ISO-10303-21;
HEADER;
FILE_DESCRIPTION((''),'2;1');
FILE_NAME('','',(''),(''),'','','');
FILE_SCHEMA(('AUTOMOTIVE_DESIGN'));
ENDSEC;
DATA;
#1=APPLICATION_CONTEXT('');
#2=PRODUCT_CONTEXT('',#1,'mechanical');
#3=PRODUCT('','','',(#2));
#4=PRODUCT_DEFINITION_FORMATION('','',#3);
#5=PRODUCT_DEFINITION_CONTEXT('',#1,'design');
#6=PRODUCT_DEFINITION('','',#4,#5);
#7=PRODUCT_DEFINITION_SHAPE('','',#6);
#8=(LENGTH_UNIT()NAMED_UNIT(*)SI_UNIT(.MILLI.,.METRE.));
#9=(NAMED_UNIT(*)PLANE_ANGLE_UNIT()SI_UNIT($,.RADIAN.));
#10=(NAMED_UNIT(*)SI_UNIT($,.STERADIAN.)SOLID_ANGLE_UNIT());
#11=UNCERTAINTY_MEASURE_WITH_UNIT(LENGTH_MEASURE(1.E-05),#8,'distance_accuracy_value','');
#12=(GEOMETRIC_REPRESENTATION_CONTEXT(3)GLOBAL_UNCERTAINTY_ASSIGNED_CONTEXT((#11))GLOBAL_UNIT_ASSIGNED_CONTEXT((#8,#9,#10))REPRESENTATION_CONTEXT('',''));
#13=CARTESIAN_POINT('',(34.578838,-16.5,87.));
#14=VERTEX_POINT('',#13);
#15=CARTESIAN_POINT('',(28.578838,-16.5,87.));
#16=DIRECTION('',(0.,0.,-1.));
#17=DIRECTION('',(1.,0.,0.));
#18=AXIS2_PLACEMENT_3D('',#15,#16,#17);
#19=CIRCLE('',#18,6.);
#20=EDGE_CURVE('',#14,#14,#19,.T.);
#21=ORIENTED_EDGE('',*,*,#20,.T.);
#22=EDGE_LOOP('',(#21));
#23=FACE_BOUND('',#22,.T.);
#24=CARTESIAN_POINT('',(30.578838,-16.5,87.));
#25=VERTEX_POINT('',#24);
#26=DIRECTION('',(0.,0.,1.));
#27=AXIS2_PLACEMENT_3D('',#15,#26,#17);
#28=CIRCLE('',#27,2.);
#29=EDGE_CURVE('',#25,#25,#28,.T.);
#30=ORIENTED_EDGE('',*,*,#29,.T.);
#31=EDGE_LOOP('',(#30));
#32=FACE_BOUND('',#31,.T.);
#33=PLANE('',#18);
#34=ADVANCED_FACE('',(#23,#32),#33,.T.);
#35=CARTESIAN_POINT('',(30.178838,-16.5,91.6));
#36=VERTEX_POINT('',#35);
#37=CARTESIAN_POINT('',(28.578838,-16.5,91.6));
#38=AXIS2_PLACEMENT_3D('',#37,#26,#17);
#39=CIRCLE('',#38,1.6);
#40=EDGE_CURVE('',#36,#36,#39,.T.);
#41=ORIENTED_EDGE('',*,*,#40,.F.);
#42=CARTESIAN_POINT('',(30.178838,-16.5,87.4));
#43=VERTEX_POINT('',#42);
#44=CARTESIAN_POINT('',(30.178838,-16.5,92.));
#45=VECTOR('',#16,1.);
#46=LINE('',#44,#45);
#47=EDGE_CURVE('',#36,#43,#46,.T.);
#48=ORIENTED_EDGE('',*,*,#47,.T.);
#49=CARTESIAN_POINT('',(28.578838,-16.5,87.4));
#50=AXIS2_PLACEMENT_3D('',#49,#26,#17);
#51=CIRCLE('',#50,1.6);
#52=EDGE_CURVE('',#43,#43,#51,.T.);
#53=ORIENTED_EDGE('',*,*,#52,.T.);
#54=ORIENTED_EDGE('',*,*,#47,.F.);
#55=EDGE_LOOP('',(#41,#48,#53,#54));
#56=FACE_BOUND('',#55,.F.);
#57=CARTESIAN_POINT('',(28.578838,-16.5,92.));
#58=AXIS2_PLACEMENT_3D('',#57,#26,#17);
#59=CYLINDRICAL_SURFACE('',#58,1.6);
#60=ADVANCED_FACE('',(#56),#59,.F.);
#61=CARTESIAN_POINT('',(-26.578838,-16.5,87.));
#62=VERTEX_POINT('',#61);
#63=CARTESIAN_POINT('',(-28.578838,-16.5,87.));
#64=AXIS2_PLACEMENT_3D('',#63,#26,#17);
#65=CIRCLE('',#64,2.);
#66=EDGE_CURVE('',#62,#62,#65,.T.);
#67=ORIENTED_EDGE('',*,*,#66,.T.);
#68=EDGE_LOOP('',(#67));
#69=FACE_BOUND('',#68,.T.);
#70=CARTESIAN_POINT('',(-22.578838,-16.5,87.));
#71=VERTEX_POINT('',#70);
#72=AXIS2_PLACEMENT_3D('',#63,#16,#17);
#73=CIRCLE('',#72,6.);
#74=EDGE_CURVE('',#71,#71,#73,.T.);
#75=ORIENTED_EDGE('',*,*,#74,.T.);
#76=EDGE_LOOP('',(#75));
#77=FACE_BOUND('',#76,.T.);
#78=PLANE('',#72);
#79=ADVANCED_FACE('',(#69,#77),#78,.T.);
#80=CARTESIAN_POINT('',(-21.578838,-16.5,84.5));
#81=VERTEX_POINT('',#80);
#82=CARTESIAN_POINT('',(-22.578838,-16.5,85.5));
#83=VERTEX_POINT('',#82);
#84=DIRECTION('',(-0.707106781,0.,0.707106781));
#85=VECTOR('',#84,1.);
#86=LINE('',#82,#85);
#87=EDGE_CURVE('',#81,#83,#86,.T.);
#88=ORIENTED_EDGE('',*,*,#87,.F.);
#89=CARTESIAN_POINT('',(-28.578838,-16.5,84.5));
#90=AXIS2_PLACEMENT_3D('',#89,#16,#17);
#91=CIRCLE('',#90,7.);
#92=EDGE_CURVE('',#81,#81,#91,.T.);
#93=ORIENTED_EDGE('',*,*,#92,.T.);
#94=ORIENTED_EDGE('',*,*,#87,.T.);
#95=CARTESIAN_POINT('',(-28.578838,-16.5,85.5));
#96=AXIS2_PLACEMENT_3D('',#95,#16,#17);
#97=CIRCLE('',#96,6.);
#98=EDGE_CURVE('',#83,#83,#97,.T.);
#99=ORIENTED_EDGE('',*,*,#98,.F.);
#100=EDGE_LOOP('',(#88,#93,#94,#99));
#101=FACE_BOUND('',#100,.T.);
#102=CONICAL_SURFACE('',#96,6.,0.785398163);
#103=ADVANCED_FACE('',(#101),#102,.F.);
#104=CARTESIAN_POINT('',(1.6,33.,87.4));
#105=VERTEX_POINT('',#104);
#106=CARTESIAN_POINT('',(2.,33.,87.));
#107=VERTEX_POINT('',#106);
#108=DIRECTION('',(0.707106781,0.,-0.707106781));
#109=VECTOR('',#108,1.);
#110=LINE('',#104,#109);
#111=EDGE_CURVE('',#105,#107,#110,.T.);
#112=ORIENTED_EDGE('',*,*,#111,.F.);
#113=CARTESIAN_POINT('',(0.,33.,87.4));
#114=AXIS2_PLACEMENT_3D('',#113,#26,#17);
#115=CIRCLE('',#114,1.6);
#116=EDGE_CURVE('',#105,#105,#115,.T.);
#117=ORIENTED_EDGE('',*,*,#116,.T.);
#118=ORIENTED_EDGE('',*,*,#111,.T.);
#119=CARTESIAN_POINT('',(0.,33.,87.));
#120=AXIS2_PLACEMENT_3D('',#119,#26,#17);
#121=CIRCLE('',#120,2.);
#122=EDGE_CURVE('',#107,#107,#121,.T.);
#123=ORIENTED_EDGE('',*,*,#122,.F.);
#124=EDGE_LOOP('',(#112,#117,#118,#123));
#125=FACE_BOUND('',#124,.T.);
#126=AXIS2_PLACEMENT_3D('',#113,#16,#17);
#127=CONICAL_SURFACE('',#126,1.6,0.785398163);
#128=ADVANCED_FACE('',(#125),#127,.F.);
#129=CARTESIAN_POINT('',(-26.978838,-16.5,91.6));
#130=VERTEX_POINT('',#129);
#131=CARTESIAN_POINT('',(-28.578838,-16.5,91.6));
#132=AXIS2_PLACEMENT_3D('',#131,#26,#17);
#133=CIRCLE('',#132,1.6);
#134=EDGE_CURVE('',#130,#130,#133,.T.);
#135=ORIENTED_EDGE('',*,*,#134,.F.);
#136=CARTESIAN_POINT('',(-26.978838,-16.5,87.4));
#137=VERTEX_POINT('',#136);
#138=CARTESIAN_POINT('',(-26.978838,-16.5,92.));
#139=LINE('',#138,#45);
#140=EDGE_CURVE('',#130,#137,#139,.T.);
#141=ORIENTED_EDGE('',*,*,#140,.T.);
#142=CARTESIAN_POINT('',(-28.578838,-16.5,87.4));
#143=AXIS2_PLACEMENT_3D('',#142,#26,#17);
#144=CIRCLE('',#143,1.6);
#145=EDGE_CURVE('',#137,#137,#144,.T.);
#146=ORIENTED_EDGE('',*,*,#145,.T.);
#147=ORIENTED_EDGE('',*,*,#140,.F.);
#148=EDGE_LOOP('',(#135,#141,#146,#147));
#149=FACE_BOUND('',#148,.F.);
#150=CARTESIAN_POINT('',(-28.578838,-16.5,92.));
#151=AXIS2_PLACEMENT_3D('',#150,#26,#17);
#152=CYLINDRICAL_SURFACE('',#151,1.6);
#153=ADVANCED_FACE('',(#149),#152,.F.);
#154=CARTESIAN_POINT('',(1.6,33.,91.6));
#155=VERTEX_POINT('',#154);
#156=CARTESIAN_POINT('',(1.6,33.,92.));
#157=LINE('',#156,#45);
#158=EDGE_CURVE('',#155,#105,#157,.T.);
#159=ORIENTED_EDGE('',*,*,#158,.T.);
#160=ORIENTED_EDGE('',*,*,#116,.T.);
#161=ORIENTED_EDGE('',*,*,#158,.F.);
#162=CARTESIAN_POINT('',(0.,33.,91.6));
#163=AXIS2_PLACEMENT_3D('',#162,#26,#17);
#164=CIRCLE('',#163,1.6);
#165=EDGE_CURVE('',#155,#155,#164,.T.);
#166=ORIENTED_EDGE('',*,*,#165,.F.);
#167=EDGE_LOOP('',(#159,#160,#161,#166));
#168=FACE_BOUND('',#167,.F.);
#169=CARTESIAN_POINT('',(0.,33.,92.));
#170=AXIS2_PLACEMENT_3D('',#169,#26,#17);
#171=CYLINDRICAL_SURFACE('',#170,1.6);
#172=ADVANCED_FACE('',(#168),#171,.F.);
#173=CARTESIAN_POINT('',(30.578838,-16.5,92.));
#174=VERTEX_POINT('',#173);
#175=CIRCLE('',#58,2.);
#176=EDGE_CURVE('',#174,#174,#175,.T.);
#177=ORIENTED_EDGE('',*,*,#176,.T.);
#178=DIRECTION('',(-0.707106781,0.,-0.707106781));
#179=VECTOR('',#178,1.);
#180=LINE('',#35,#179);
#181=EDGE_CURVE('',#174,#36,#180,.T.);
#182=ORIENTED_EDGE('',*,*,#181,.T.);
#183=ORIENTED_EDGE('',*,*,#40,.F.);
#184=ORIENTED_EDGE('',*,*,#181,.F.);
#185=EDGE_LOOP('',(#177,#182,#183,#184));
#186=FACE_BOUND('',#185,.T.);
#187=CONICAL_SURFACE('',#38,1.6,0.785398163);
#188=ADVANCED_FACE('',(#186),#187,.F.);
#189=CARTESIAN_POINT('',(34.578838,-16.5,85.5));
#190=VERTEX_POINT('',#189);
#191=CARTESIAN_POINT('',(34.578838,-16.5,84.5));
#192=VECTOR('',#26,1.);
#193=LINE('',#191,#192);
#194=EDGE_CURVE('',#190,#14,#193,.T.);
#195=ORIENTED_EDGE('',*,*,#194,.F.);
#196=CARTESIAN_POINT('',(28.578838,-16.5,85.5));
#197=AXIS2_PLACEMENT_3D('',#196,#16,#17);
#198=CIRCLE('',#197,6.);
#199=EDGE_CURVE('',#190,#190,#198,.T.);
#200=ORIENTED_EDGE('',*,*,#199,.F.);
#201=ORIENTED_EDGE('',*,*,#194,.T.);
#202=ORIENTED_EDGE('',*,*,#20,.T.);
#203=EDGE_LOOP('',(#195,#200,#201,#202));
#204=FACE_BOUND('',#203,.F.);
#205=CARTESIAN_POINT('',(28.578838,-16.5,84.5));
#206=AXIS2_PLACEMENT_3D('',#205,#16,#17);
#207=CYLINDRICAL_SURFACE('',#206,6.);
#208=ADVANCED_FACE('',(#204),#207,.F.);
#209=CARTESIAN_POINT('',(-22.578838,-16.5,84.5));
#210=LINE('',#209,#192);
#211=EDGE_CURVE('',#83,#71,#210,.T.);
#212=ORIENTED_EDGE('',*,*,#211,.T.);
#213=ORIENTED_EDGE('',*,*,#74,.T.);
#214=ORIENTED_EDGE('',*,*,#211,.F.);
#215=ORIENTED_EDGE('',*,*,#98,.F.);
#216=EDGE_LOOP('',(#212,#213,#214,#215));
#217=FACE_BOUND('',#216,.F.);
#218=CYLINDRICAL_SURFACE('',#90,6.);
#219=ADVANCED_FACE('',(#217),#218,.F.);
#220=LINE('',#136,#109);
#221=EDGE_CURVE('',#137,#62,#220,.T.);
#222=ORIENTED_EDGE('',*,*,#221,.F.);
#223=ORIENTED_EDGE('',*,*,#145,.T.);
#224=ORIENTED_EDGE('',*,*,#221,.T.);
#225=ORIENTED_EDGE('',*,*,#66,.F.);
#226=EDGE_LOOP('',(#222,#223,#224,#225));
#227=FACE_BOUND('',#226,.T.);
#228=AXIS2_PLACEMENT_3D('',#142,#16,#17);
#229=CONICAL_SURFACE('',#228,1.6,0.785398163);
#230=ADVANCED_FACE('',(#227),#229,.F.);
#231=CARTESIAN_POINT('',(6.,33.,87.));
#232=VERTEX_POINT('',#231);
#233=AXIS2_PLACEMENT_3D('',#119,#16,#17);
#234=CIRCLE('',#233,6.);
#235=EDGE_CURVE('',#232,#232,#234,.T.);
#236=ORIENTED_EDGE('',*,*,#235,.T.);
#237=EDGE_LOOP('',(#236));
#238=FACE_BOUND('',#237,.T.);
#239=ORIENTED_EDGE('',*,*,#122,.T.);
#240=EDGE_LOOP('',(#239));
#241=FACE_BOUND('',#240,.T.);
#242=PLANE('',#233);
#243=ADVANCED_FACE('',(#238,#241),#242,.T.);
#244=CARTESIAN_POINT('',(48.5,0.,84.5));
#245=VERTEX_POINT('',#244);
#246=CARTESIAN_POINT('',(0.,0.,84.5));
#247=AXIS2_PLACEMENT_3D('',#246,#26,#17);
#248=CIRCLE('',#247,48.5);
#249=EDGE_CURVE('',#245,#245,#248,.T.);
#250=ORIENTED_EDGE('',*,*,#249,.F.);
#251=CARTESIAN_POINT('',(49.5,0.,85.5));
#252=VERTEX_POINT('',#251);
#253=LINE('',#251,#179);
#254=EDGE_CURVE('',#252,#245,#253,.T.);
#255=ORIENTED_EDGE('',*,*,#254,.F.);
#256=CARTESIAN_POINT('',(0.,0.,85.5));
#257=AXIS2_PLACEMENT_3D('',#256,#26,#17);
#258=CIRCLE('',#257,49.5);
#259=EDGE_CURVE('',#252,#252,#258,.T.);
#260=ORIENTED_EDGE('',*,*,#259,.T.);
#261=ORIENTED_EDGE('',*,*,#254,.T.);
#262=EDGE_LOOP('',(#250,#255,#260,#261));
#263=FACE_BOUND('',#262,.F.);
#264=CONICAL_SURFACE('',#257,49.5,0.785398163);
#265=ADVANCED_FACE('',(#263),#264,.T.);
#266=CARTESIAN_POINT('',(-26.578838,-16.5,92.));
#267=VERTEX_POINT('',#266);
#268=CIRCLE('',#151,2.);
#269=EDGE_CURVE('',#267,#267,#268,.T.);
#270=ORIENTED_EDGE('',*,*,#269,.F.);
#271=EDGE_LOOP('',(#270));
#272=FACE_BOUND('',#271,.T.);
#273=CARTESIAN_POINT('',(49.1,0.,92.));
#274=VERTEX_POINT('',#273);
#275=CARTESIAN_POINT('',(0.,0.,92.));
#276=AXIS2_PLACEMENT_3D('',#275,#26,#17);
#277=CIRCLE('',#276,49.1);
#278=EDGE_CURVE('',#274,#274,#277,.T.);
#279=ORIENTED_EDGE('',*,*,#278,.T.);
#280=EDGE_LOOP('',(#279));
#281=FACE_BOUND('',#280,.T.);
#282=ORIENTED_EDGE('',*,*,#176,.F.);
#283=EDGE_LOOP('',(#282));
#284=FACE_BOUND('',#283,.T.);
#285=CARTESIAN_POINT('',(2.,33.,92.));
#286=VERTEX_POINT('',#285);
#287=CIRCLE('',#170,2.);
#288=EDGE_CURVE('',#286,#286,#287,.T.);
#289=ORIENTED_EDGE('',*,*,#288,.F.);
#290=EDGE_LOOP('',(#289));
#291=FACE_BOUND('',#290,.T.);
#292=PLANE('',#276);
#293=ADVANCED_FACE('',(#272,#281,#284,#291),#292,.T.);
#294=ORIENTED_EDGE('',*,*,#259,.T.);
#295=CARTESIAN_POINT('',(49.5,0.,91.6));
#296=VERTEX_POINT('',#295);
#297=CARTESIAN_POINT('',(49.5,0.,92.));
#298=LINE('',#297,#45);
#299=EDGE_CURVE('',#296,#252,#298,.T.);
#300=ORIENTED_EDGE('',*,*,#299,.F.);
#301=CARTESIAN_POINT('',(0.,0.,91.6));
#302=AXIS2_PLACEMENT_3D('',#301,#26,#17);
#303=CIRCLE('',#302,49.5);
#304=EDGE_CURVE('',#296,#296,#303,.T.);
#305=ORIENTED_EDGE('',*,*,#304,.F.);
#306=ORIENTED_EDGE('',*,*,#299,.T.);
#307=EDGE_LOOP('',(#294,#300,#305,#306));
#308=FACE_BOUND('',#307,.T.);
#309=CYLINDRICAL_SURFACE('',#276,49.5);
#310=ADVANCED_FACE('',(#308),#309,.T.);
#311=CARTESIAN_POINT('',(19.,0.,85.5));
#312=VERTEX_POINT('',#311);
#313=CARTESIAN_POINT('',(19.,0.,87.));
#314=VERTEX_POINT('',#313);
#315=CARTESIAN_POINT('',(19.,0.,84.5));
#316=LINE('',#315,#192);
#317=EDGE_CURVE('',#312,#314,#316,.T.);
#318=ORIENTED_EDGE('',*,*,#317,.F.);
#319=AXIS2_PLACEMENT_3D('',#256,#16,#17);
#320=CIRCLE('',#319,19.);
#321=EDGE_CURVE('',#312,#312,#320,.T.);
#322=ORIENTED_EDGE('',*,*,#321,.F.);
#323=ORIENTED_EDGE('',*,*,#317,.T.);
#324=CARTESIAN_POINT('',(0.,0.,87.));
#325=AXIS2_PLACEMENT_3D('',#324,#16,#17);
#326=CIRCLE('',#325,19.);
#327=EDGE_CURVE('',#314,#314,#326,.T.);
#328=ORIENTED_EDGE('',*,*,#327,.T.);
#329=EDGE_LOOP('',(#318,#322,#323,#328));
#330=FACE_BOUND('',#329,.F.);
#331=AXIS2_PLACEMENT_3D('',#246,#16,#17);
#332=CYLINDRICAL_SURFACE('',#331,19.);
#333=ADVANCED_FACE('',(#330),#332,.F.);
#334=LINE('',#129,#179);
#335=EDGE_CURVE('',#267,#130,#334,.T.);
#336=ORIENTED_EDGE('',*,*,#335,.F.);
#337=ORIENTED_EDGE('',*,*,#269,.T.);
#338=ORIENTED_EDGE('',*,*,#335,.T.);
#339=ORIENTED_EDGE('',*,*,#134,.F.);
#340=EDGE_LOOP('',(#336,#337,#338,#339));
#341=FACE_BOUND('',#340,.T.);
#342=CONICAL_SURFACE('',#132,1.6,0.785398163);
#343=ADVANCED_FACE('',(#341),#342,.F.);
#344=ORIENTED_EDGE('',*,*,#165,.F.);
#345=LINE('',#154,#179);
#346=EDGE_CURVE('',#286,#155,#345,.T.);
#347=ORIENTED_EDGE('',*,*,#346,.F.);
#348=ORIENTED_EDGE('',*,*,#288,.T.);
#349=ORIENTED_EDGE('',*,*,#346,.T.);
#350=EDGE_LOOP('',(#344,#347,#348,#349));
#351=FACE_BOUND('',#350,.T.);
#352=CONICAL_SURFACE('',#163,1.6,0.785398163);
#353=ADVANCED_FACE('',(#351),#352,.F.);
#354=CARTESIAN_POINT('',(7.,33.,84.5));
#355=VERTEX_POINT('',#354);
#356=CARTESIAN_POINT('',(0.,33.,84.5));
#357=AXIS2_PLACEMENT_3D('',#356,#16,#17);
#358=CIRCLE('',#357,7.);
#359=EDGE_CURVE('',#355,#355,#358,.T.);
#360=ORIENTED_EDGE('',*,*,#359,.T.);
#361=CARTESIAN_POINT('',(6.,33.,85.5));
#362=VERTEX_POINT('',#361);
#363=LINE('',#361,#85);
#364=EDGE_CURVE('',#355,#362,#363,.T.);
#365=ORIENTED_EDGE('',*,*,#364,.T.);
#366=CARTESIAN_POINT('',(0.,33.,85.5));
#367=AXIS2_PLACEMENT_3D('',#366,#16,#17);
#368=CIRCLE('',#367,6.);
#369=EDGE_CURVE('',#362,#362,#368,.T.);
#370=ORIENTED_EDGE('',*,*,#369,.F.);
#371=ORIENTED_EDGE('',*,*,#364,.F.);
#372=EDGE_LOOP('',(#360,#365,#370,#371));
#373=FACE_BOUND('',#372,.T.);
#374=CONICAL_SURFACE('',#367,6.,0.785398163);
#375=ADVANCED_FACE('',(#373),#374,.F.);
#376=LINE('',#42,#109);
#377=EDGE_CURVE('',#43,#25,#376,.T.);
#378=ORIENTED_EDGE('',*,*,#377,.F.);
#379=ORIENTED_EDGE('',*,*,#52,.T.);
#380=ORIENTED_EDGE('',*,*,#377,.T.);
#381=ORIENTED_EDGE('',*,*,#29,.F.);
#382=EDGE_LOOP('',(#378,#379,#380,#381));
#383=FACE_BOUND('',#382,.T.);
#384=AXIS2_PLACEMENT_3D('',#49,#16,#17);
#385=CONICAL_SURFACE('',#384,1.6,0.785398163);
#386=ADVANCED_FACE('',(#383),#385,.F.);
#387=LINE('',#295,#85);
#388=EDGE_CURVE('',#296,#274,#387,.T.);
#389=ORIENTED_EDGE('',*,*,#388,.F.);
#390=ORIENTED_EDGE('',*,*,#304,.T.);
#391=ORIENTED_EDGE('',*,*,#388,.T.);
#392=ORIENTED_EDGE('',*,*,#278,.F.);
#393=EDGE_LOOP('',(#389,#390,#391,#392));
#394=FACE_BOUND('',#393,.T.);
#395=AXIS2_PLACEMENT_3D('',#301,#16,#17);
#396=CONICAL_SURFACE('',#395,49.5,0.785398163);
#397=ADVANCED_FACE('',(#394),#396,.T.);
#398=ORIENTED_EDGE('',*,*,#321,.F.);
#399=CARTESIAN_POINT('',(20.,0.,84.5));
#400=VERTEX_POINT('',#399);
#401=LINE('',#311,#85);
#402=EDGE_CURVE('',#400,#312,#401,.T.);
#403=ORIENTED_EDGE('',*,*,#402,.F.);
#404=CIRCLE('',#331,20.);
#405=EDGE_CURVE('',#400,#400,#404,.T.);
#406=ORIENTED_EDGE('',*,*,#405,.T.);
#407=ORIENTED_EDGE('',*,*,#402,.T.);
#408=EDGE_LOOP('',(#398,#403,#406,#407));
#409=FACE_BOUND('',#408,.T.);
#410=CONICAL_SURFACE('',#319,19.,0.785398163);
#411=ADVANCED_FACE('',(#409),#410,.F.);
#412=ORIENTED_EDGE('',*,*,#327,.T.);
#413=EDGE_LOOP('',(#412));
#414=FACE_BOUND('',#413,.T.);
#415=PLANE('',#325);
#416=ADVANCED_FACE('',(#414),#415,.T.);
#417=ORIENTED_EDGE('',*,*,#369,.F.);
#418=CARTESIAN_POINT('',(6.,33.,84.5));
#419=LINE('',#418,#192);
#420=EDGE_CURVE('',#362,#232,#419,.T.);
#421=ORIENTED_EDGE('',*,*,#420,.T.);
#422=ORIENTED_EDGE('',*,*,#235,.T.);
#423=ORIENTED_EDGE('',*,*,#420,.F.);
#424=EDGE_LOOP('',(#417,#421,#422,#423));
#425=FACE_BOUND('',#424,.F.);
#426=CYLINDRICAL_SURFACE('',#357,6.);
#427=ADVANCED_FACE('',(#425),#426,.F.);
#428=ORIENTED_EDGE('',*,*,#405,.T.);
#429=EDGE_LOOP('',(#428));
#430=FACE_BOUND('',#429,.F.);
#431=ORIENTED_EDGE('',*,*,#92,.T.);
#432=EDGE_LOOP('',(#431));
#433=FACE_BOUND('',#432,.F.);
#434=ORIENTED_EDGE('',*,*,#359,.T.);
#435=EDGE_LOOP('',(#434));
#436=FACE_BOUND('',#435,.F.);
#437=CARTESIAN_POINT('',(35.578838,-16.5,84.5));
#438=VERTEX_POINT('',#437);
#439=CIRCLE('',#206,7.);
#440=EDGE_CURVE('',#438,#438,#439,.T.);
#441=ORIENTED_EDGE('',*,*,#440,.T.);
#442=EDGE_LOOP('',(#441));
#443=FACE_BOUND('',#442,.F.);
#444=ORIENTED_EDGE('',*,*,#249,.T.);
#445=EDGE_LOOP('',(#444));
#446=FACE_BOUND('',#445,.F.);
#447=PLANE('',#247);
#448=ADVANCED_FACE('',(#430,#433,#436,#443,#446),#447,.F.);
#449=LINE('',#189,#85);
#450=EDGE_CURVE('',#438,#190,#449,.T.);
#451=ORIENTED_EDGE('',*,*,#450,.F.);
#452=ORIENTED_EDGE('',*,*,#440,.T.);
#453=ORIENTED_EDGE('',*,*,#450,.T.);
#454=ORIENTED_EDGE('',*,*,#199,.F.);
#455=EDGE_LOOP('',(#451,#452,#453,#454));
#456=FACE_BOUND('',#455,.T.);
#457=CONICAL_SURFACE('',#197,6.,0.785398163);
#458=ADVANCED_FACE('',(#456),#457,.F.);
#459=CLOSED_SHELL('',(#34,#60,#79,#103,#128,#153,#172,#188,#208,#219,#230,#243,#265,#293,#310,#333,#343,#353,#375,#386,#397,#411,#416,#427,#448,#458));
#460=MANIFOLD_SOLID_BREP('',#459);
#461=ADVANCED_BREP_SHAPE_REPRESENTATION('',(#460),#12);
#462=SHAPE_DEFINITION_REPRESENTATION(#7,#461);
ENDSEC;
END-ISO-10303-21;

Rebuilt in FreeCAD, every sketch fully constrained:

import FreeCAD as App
import Part
import Sketcher
Q = App.Units.Quantity


def edges_at(feature, points):
    """Names of the edges that pass closest to the given points."""
    edges = feature.Shape.Edges
    near = lambda p: min(range(len(edges)), key=lambda i: edges[i].distToShape(Part.Vertex(*p))[0])
    return sorted({f"Edge{near(p) + 1}" for p in points})

doc = App.newDocument("Part")
body = doc.addObject("PartDesign::Body", "Body")

sketch1 = body.newObject("Sketcher::SketchObject", "Sketch")
sketch1.AttachmentSupport = (doc.getObject("XY_Plane"), [""])
sketch1.MapMode = "FlatFace"
sketch1.addGeometry(Part.Circle(App.Vector(0, 0, 0), App.Vector(0, 0, 1), 49.5), False)
sketch1.addGeometry(Part.Circle(App.Vector(-28.578838, -16.5, 0), App.Vector(0, 0, 1), 1.6), False)
sketch1.addGeometry(Part.Circle(App.Vector(28.578838, -16.5, 0), App.Vector(0, 0, 1), 1.6), False)
sketch1.addGeometry(Part.Circle(App.Vector(0, 33, 0), App.Vector(0, 0, 1), 1.6), False)
sketch1.addConstraint(Sketcher.Constraint("Coincident", 0, 3, -1, 1))
sketch1.addConstraint(Sketcher.Constraint("Equal", 1, 2))
sketch1.addConstraint(Sketcher.Constraint("Equal", 2, 3))
sketch1.addConstraint(Sketcher.Constraint("Symmetric", 1, 3, 2, 3, -2))
sketch1.addConstraint(Sketcher.Constraint("PointOnObject", 3, 3, -2))
sketch1.addConstraint(Sketcher.Constraint("Diameter", 0, Q("99 mm")))
sketch1.addConstraint(Sketcher.Constraint("Diameter", 1, Q("3.2 mm")))
sketch1.addConstraint(Sketcher.Constraint("DistanceY", -1, 1, 3, 3, Q("33 mm")))
sketch1.addConstraint(Sketcher.Constraint("DistanceY", 1, 3, -1, 1, Q("16.5 mm")))
sketch1.addConstraint(Sketcher.Constraint("DistanceX", 1, 3, -1, 1, Q("28.578838 mm")))
pad1 = body.newObject("PartDesign::Pad", "Pad")
pad1.Profile = sketch1
pad1.Length = 7.5
pad1.Reversed = True

sketch2 = body.newObject("Sketcher::SketchObject", "Sketch001")
sketch2.AttachmentSupport = (doc.getObject("XY_Plane"), [""])
sketch2.MapMode = "FlatFace"
sketch2.AttachmentOffset = App.Placement(App.Vector(0, 0, -7.5), App.Rotation())
sketch2.addGeometry(Part.Circle(App.Vector(0, 0, 0), App.Vector(0, 0, 1), 19), False)
sketch2.addGeometry(Part.Circle(App.Vector(28.578838, -16.5, 0), App.Vector(0, 0, 1), 6), False)
sketch2.addGeometry(Part.Circle(App.Vector(0, 33, 0), App.Vector(0, 0, 1), 6), False)
sketch2.addGeometry(Part.Circle(App.Vector(-28.578838, -16.5, 0), App.Vector(0, 0, 1), 6), False)
sketch2.addConstraint(Sketcher.Constraint("Coincident", 0, 3, -1, 1))
sketch2.addConstraint(Sketcher.Constraint("Equal", 1, 2))
sketch2.addConstraint(Sketcher.Constraint("Equal", 2, 3))
sketch2.addConstraint(Sketcher.Constraint("Symmetric", 1, 3, 3, 3, -2))
sketch2.addConstraint(Sketcher.Constraint("PointOnObject", 2, 3, -2))
sketch2.addConstraint(Sketcher.Constraint("Diameter", 0, Q("38 mm")))
sketch2.addConstraint(Sketcher.Constraint("Diameter", 1, Q("12 mm")))
sketch2.addConstraint(Sketcher.Constraint("DistanceY", -1, 1, 2, 3, Q("33 mm")))
sketch2.addConstraint(Sketcher.Constraint("DistanceY", 1, 3, -1, 1, Q("16.5 mm")))
sketch2.addConstraint(Sketcher.Constraint("DistanceX", -1, 1, 1, 3, Q("28.578838 mm")))
pocket1 = body.newObject("PartDesign::Pocket", "Pocket")
pocket1.Profile = sketch2
pocket1.Length = 2.5
pocket1.Reversed = True
doc.recompute()

chamfer = body.newObject("PartDesign::Chamfer", "Chamfer")
chamfer.Base = (pocket1, edges_at(pocket1, [
    (-19, 0, -7.5),
    (22.579, -16.5, -7.5),
    (-34.579, -16.5, -7.5),
    (-6, 33, -7.5),
    (-49.5, 0, -7.5),
]))
chamfer.Size = 1
doc.recompute()

chamfer2 = body.newObject("PartDesign::Chamfer", "Chamfer001")
chamfer2.Base = (chamfer, edges_at(chamfer, [
    (26.979, -16.5, -5),
    (-1.6, 33, -5),
    (-1.6, 33, 0),
    (26.979, -16.5, 0),
    (-30.179, -16.5, -5),
    (-30.179, -16.5, 0),
    (-49.5, 0, 0),
]))
chamfer2.Size = 0.4
body2 = doc.addObject("PartDesign::Body", "Body001")
doc.recompute()

body.Placement = App.Placement(App.Vector(0, 0, 92), App.Rotation(App.Vector(0, 0, 1), 0))
boolean = body2.newObject("PartDesign::Boolean", "Boolean")
boolean.Type = "Fuse"
boolean.addObjects([body])

doc.recompute()
